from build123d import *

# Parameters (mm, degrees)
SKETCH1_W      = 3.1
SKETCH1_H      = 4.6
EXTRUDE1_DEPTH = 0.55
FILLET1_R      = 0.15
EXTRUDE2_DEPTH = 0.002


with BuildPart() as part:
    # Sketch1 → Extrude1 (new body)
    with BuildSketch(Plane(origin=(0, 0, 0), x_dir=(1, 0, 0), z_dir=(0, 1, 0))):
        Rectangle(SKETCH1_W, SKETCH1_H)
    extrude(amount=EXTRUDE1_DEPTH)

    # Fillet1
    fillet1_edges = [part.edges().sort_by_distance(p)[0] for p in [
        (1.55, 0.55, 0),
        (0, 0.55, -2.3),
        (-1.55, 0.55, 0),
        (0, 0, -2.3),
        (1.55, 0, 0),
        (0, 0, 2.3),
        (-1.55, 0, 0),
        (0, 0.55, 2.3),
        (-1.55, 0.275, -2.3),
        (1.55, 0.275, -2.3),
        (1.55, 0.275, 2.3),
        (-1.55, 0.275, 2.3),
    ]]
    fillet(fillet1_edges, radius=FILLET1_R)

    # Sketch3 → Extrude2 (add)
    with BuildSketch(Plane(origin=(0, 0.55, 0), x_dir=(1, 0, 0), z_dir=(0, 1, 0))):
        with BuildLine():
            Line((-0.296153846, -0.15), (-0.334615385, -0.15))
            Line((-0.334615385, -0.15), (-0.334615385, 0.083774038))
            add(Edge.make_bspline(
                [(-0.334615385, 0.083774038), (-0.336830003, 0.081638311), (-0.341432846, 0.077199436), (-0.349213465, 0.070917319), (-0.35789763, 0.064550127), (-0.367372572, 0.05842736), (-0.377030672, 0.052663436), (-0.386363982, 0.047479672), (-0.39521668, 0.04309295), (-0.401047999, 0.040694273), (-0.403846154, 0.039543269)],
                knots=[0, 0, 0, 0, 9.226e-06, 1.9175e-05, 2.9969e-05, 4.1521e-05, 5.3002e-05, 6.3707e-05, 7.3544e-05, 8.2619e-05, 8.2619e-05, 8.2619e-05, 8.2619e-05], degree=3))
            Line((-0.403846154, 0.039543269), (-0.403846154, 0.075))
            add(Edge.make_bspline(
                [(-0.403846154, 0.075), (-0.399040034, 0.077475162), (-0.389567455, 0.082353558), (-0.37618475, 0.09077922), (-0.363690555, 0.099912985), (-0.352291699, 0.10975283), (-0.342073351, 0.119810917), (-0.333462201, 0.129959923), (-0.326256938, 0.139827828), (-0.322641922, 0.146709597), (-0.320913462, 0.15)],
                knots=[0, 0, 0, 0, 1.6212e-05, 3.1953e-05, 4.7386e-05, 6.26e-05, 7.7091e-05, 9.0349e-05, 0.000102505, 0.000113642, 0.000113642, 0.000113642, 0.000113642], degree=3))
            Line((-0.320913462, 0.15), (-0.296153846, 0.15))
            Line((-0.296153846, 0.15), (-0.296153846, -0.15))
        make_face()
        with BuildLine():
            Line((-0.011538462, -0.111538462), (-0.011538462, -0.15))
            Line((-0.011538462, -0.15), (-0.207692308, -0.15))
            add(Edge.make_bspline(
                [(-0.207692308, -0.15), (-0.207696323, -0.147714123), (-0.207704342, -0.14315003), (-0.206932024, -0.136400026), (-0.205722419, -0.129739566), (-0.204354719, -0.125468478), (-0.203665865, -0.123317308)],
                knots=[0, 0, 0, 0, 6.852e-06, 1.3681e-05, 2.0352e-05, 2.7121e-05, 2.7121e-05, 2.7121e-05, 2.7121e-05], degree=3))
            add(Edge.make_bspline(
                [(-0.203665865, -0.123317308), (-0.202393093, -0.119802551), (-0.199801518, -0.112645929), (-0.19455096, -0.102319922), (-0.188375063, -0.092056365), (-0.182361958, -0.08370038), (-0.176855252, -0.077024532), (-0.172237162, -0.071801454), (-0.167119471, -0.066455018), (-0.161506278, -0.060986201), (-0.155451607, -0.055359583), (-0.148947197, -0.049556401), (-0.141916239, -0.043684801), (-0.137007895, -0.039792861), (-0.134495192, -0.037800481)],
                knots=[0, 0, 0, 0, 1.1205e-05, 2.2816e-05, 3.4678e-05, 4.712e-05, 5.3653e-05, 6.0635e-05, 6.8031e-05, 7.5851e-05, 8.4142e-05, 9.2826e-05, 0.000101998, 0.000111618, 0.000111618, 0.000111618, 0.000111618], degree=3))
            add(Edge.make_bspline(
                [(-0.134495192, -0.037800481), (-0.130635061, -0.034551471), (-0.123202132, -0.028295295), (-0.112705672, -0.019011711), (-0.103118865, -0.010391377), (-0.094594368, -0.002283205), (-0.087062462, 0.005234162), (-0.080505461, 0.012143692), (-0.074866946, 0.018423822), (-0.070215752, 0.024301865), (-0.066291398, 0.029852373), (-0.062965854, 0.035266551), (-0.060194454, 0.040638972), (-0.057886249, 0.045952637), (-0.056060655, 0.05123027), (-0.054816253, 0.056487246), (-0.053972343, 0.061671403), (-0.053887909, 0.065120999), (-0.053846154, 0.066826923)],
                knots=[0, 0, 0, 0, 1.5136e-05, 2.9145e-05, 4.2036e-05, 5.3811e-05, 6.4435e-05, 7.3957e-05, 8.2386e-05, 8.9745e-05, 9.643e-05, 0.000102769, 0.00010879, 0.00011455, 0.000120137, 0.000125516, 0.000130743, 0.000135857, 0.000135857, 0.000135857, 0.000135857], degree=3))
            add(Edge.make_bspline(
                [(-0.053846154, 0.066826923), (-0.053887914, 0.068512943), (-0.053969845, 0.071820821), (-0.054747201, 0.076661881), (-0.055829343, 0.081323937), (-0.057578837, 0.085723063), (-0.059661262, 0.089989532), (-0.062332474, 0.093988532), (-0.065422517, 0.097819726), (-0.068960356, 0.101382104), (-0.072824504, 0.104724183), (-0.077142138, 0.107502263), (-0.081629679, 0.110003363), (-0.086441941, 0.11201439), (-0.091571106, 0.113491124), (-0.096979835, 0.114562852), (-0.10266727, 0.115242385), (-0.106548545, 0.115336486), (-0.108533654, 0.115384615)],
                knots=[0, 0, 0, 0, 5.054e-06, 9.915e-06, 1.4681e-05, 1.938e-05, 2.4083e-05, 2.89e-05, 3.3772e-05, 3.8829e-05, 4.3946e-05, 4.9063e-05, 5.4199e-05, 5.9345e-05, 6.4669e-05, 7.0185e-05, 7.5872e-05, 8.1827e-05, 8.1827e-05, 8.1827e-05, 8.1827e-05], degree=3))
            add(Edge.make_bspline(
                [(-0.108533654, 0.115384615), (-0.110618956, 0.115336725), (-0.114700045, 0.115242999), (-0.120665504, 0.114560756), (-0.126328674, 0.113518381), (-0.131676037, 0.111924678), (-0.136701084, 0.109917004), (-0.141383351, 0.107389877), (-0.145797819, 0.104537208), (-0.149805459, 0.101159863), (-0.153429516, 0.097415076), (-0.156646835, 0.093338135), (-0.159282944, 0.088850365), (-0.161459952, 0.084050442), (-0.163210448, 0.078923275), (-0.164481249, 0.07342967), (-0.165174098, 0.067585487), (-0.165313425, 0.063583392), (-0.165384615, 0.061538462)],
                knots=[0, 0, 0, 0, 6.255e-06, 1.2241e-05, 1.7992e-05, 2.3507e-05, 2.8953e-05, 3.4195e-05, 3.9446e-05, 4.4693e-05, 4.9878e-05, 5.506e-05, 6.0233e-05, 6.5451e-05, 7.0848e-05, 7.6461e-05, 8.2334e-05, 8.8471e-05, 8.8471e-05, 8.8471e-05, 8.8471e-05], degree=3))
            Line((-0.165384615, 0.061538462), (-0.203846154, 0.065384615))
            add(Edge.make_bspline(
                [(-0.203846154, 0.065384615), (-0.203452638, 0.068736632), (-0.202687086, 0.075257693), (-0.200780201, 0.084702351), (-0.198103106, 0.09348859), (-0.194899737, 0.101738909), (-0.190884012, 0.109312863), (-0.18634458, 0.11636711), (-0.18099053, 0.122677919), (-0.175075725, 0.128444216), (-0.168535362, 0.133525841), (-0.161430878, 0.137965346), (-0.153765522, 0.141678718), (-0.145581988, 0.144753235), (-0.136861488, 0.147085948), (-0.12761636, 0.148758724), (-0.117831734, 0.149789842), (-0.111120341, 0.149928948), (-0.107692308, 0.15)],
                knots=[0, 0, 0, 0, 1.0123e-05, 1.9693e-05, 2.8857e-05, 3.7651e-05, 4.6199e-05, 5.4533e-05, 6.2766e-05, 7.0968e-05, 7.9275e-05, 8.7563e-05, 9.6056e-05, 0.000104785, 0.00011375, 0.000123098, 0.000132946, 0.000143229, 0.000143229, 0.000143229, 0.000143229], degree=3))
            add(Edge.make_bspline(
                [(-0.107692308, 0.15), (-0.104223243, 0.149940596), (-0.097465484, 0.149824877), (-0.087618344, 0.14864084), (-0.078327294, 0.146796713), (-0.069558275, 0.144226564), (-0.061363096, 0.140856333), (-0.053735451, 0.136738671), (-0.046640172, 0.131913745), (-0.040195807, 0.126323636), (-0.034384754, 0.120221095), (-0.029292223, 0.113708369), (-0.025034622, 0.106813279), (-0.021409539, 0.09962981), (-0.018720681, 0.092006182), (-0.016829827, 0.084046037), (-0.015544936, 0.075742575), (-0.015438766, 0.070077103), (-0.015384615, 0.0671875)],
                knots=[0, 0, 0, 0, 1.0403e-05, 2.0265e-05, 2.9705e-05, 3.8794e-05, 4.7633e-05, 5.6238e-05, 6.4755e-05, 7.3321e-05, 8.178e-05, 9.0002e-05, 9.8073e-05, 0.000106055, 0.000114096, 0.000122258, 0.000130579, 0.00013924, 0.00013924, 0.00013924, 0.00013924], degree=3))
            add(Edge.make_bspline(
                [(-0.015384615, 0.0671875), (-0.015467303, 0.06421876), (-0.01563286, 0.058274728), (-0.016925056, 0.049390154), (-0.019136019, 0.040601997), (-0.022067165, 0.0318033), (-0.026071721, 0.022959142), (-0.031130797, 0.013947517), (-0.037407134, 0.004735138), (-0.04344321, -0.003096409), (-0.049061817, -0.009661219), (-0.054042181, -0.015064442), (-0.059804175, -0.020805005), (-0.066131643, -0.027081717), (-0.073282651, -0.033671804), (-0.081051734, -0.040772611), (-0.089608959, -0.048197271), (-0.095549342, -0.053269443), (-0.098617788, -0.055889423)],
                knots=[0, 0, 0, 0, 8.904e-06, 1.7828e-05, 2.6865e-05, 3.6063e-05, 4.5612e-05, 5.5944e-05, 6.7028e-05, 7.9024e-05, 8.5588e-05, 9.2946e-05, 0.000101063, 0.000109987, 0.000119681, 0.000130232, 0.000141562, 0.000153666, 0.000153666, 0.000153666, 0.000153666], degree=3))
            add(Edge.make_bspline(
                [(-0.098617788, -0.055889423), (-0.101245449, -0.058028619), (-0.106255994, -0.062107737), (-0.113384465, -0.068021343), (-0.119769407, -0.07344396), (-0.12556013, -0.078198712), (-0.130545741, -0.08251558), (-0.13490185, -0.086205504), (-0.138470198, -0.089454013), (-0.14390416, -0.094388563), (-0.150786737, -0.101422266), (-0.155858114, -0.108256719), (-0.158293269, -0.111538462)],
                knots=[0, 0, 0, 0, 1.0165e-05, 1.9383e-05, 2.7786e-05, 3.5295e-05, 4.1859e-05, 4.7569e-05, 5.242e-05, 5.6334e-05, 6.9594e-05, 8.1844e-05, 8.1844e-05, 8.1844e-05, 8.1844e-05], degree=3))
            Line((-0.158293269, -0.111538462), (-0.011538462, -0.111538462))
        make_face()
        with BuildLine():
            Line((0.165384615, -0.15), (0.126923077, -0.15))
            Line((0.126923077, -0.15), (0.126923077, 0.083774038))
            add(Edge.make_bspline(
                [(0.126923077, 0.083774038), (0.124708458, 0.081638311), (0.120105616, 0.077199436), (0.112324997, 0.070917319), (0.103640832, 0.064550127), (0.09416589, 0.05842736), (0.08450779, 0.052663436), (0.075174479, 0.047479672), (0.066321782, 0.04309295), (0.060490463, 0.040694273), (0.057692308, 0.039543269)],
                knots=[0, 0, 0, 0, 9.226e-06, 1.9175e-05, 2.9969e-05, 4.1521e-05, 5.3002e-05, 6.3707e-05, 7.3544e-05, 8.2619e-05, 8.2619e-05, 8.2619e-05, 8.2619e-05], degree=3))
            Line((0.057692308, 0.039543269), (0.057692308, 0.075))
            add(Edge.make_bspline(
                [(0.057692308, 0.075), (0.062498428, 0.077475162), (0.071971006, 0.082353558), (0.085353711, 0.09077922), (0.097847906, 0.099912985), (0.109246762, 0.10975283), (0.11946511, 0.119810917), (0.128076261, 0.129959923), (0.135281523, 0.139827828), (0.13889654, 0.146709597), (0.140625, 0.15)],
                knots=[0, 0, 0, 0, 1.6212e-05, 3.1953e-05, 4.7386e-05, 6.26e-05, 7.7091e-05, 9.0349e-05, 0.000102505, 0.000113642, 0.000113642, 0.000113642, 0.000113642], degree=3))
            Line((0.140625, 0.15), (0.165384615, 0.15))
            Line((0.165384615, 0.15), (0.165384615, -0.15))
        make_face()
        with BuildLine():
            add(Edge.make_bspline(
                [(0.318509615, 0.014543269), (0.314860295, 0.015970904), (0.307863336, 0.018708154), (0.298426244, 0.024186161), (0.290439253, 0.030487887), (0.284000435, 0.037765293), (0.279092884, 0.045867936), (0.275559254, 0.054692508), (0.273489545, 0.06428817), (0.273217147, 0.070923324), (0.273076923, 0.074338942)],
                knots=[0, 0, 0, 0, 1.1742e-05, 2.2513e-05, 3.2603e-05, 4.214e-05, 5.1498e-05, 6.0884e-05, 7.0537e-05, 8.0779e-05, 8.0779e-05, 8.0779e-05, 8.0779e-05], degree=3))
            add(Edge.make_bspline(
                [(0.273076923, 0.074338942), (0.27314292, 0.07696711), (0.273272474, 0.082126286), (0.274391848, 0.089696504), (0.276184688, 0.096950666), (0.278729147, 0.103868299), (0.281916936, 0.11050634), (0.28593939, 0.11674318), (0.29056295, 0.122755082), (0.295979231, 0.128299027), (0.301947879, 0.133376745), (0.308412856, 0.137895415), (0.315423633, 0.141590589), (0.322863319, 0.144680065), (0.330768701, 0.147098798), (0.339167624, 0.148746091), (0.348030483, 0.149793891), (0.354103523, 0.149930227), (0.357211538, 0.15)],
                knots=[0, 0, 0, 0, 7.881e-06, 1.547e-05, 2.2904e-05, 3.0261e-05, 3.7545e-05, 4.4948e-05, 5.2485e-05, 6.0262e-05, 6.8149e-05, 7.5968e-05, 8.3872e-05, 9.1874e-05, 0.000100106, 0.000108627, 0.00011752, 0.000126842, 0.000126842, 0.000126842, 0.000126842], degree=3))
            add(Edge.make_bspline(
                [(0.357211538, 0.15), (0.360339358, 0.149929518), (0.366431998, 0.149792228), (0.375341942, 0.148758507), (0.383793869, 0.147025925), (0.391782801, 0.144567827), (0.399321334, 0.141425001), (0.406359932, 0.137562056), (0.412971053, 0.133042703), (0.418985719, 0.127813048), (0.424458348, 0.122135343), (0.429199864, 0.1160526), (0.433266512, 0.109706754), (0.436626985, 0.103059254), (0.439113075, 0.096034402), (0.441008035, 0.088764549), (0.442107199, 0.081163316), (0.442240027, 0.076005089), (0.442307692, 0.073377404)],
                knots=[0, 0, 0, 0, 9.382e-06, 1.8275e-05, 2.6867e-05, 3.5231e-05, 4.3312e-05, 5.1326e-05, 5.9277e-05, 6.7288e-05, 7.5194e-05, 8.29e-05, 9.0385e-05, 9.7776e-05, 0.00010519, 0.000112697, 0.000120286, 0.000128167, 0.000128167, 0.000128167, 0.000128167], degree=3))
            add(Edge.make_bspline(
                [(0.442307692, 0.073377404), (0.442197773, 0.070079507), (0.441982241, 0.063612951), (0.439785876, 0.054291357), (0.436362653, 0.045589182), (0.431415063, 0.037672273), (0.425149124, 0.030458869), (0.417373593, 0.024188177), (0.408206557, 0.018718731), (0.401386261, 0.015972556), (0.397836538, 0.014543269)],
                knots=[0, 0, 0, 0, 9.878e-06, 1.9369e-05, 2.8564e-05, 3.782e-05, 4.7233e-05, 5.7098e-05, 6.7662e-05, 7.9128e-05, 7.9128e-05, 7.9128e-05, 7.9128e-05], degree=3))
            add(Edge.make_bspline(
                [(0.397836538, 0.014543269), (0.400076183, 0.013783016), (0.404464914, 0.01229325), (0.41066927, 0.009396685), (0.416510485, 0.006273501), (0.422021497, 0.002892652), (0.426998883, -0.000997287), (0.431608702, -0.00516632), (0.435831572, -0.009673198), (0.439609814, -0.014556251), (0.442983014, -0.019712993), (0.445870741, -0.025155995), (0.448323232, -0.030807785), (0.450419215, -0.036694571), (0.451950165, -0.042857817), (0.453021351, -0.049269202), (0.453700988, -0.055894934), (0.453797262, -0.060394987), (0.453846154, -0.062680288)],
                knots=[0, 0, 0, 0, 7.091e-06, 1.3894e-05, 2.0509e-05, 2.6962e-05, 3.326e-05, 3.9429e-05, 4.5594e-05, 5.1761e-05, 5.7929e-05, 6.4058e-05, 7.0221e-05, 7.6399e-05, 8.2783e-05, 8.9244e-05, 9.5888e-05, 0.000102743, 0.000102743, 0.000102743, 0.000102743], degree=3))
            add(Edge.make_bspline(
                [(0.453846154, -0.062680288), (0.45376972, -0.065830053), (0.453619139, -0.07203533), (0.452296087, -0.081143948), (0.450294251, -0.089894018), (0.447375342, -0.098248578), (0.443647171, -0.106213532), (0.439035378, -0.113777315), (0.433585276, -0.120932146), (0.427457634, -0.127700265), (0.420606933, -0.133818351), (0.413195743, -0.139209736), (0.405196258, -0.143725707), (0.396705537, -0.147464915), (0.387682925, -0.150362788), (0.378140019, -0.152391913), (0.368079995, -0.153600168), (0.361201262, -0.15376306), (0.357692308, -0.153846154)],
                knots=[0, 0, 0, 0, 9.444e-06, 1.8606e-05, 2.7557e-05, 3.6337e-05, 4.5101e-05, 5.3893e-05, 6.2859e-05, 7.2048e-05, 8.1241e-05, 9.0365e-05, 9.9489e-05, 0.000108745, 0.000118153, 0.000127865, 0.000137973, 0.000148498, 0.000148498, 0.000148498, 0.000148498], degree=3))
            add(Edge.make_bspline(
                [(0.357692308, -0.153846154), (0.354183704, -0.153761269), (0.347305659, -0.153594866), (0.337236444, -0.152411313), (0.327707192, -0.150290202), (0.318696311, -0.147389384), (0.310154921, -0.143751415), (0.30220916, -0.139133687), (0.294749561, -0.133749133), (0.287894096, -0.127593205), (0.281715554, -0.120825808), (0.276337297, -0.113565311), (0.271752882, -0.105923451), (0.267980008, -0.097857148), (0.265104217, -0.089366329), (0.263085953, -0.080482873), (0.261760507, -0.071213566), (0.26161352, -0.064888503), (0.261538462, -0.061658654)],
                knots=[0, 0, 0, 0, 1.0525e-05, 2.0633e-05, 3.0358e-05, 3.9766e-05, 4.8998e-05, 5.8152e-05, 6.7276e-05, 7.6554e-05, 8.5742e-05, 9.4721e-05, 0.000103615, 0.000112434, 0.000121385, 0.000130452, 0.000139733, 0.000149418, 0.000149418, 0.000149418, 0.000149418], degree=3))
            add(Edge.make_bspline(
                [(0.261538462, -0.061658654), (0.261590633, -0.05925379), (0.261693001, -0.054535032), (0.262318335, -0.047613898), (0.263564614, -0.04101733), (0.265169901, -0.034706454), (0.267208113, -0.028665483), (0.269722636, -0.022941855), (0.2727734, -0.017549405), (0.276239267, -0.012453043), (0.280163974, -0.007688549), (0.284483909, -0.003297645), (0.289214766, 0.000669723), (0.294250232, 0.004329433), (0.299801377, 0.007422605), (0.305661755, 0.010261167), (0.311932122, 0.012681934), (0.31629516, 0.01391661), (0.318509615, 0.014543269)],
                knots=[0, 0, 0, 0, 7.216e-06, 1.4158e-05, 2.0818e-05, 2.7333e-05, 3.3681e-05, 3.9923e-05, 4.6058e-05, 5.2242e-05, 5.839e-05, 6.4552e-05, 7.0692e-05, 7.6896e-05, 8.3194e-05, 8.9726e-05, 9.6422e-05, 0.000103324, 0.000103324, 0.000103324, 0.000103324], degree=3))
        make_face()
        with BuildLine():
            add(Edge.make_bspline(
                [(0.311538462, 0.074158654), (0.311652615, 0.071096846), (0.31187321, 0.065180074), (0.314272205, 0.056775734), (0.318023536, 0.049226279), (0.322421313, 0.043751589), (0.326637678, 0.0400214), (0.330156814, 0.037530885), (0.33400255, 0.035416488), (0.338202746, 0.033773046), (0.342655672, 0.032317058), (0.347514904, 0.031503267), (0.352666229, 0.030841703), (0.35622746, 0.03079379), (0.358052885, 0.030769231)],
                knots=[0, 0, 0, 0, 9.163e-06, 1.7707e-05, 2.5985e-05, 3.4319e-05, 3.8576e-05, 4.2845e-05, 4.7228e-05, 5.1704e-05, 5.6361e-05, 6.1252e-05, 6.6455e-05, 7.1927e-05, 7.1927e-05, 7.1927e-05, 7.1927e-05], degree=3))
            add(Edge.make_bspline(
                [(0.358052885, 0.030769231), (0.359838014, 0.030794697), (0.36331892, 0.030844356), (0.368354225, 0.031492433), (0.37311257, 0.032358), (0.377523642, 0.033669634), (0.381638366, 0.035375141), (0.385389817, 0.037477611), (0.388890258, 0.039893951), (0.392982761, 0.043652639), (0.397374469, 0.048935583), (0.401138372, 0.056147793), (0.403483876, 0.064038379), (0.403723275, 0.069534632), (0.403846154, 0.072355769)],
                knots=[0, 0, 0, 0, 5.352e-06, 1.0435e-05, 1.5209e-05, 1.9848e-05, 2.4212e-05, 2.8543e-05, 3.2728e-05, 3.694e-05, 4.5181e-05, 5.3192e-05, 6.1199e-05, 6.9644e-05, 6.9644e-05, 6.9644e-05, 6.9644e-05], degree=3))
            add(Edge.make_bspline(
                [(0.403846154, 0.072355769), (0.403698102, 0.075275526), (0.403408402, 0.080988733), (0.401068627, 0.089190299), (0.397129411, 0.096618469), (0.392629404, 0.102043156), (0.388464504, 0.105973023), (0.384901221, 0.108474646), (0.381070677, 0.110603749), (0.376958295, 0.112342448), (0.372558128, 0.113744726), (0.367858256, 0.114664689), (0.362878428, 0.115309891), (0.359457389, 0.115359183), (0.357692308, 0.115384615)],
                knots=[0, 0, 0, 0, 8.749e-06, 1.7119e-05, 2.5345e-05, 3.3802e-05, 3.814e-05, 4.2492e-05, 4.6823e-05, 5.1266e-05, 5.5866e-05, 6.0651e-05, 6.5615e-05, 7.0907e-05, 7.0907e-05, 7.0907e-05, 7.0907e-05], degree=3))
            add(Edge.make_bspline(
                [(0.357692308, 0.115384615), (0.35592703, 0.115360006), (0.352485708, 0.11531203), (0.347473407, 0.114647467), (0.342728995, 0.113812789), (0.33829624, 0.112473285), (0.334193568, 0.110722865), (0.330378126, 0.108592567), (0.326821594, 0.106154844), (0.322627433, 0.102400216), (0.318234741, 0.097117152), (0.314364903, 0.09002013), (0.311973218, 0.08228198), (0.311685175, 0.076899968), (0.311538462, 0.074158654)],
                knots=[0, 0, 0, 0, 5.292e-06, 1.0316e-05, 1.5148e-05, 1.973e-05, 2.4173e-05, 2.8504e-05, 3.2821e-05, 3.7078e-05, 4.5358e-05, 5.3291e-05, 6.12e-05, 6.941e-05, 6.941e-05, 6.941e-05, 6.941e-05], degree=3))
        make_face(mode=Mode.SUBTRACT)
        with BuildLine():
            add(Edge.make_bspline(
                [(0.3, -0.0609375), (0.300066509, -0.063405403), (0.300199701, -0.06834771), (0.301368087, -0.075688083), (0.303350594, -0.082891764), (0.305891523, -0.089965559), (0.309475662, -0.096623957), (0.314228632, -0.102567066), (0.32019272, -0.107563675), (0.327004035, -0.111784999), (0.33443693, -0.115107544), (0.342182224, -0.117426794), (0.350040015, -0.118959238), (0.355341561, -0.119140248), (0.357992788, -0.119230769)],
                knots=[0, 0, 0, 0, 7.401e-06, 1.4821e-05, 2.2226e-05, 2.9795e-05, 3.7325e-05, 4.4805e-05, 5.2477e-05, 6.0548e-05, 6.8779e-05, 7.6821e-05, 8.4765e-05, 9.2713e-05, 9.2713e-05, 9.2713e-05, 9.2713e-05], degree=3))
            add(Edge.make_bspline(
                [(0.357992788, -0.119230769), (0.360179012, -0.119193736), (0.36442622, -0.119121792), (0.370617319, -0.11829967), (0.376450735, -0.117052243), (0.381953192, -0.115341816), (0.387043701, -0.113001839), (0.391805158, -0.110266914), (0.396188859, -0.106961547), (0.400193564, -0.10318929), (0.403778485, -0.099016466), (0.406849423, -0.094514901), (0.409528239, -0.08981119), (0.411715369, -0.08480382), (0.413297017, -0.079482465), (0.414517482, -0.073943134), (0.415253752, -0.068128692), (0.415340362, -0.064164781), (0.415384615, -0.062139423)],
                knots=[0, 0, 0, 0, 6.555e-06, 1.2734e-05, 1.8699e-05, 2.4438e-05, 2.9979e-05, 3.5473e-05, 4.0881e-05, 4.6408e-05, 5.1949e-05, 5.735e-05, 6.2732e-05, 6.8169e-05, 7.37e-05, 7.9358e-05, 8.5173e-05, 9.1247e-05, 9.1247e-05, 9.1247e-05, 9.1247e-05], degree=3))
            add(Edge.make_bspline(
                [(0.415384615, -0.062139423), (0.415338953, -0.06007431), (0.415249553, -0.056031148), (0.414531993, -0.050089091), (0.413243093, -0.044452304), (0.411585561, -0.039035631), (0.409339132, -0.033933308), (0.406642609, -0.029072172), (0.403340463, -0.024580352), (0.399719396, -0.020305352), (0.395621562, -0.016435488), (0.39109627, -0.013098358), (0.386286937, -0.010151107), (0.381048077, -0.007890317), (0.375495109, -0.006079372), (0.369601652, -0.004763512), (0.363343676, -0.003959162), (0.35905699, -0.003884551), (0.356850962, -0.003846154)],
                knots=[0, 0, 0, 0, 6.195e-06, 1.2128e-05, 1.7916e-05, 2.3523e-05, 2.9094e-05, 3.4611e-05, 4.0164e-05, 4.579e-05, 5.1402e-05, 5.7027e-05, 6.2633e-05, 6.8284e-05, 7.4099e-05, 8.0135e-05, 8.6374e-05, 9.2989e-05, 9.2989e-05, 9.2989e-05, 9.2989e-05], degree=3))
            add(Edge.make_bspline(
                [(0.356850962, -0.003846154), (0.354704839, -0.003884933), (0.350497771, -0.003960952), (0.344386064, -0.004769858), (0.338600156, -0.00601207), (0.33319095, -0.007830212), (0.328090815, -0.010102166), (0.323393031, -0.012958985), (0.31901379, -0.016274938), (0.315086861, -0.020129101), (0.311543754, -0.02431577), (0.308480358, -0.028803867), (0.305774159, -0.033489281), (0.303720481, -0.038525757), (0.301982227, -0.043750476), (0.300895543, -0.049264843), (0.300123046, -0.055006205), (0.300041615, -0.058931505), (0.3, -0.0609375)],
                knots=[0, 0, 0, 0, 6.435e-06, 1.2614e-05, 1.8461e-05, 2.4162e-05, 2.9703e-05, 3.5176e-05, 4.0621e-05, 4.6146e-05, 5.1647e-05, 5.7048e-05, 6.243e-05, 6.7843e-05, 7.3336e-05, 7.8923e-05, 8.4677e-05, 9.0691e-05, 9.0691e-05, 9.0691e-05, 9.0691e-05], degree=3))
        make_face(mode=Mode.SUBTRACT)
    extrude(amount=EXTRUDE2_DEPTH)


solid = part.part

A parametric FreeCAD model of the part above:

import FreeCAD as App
import Part
import Sketcher


def add_polygon(sketch, points):
    """Adds a closed chain of lines whose ends are joined by coincident constraints."""
    first, n = sketch.GeometryCount, len(points)
    for a, b in zip(points, points[1:] + points[:1]):
        sketch.addGeometry(Part.LineSegment(App.Vector(*a, 0), App.Vector(*b, 0)), False)
    for i in range(n):
        sketch.addConstraint(Sketcher.Constraint("Coincident", first + i, 2, first + (i + 1) % n, 1))

doc = App.newDocument("Part")
params = doc.addObject("Spreadsheet::Sheet", "Params")
for row, (alias, value) in enumerate([
    ("sketch1_width", "3.1 mm"),
    ("sketch1_height", "4.6 mm"),
    ("pad1_length", "0.55 mm"),
    ("fillet_radius", "0.15 mm"),
    ("sketch2_height", "0.3 mm"),
    ("sketch2_height2", "0.3 mm"),
    ("pad2_length", "0.002 mm"),
], start=1):
    params.set(f"A{row}", alias)
    params.set(f"B{row}", "=" + value)
    params.setAlias(f"B{row}", alias)

body = doc.addObject("PartDesign::Body", "Body")

sketch1 = doc.addObject("Sketcher::SketchObject", "Sketch")
body.addObject(sketch1)
sketch1.AttachmentSupport = (doc.XZ_Plane, [""])
sketch1.MapMode = "FlatFace"
add_polygon(sketch1, [(-1.55, -2.3), (-1.55, 2.3), (1.55, 2.3), (1.55, -2.3)])
sketch1.addConstraint([
    Sketcher.Constraint("Vertical", 0),
    Sketcher.Constraint("Horizontal", 1),
    Sketcher.Constraint("Vertical", 2),
    Sketcher.Constraint("Horizontal", 3),
    Sketcher.Constraint("Symmetric", 0, 2, 2, 2, -1, 1),
    Sketcher.Constraint("DistanceX", 1, 1, 1, 2, 3.1),
    Sketcher.Constraint("DistanceY", 0, 1, 0, 2, 4.6),
])
sketch1.setExpression("Constraints[9]", "Params.sketch1_width")
sketch1.setExpression("Constraints[10]", "Params.sketch1_height")
pad1 = doc.addObject("PartDesign::Pad", "Pad")
body.addObject(pad1)
pad1.Profile = sketch1
pad1.setExpression("Length", "Params.pad1_length")
pad1.Reversed = True
doc.recompute()

fillet = doc.addObject("PartDesign::Fillet", "Fillet")
body.addObject(fillet)
fillet.Base = (pad1, ["Edge1"])
fillet.UseAllEdges = True
fillet.setExpression("Radius", "Params.fillet_radius")

sketch2 = doc.addObject("Sketcher::SketchObject", "Sketch001")
body.addObject(sketch2)
sketch2.AttachmentSupport = (doc.XZ_Plane, [""])
sketch2.MapMode = "FlatFace"
sketch2.AttachmentOffset = App.Placement(App.Vector(0, 0, -0.55), App.Rotation())
sketch2.addGeometry([
    Part.LineSegment(App.Vector(-0.334615, 0.15, 0), App.Vector(-0.296154, 0.15, 0)),
    Part.LineSegment(App.Vector(-0.296154, 0.15, 0), App.Vector(-0.296154, -0.15, 0)),
    Part.LineSegment(App.Vector(-0.296154, -0.15, 0), App.Vector(-0.320913, -0.15, 0)),
    Part.BSplineCurve([App.Vector(-0.403846, -0.075, 0), App.Vector(-0.39904, -0.077475, 0), App.Vector(-0.389567, -0.082354, 0), App.Vector(-0.376185, -0.090779, 0), App.Vector(-0.363691, -0.099913, 0), App.Vector(-0.352292, -0.109753, 0), App.Vector(-0.342073, -0.119811, 0), App.Vector(-0.333462, -0.12996, 0), App.Vector(-0.326257, -0.139828, 0), App.Vector(-0.322642, -0.14671, 0), App.Vector(-0.320913, -0.15, 0)], [4, 1, 1, 1, 1, 1, 1, 1, 4], [0, 0.000016212, 0.000031953, 0.000047386, 0.0000626, 0.000077091, 0.000090349, 0.000102505, 0.000113642], False, 3, [1, 1, 1, 1, 1, 1, 1, 1, 1, 1, 1], False),
    Part.LineSegment(App.Vector(-0.403846, -0.075, 0), App.Vector(-0.403846, -0.039543, 0)),
    Part.BSplineCurve([App.Vector(-0.334615, -0.083774, 0), App.Vector(-0.33683, -0.081638, 0), App.Vector(-0.341433, -0.077199, 0), App.Vector(-0.349213, -0.070917, 0), App.Vector(-0.357898, -0.06455, 0), App.Vector(-0.367373, -0.058427, 0), App.Vector(-0.377031, -0.052663, 0), App.Vector(-0.386364, -0.04748, 0), App.Vector(-0.395217, -0.043093, 0), App.Vector(-0.401048, -0.040694, 0), App.Vector(-0.403846, -0.039543, 0)], [4, 1, 1, 1, 1, 1, 1, 1, 4], [0, 0.000009226, 0.000019175, 0.000029969, 0.000041521, 0.000053002, 0.000063707, 0.000073544, 0.000082619], False, 3, [1, 1, 1, 1, 1, 1, 1, 1, 1, 1, 1], False),
    Part.LineSegment(App.Vector(-0.334615, -0.083774, 0), App.Vector(-0.334615, 0.15, 0)),
    Part.LineSegment(App.Vector(-0.011538, 0.15, 0), App.Vector(-0.011538, 0.111538, 0)),
    Part.LineSegment(App.Vector(-0.011538, 0.111538, 0), App.Vector(-0.158293, 0.111538, 0)),
    Part.BSplineCurve([App.Vector(-0.098618, 0.055889, 0), App.Vector(-0.101245, 0.058029, 0), App.Vector(-0.106256, 0.062108, 0), App.Vector(-0.113384, 0.068021, 0), App.Vector(-0.119769, 0.073444, 0), App.Vector(-0.12556, 0.078199, 0), App.Vector(-0.130546, 0.082516, 0), App.Vector(-0.134902, 0.086206, 0), App.Vector(-0.13847, 0.089454, 0), App.Vector(-0.143904, 0.094389, 0), App.Vector(-0.150787, 0.101422, 0), App.Vector(-0.155858, 0.108257, 0), App.Vector(-0.158293, 0.111538, 0)], [4, 1, 1, 1, 1, 1, 1, 1, 1, 1, 4], [0, 0.000010165, 0.000019383, 0.000027786, 0.000035295, 0.000041859, 0.000047569, 0.00005242, 0.000056334, 0.000069594, 0.000081844], False, 3, [1, 1, 1, 1, 1, 1, 1, 1, 1, 1, 1, 1, 1], False),
    Part.BSplineCurve([App.Vector(-0.015385, -0.067187, 0), App.Vector(-0.015467, -0.064219, 0), App.Vector(-0.015633, -0.058275, 0), App.Vector(-0.016925, -0.04939, 0), App.Vector(-0.019136, -0.040602, 0), App.Vector(-0.022067, -0.031803, 0), App.Vector(-0.026072, -0.022959, 0), App.Vector(-0.031131, -0.013948, 0), App.Vector(-0.037407, -0.004735, 0), App.Vector(-0.043443, 0.003096, 0), App.Vector(-0.049062, 0.009661, 0), App.Vector(-0.054042, 0.015064, 0), App.Vector(-0.059804, 0.020805, 0), App.Vector(-0.066132, 0.027082, 0), App.Vector(-0.073283, 0.033672, 0), App.Vector(-0.081052, 0.040773, 0), App.Vector(-0.089609, 0.048197, 0), App.Vector(-0.095549, 0.053269, 0), App.Vector(-0.098618, 0.055889, 0)], [4, 1, 1, 1, 1, 1, 1, 1, 1, 1, 1, 1, 1, 1, 1, 1, 4], [0, 0.000008904, 0.000017828, 0.000026865, 0.000036063, 0.000045612, 0.000055944, 0.000067028, 0.000079024, 0.000085588, 0.000092946, 0.000101063, 0.000109987, 0.000119681, 0.000130232, 0.000141562, 0.000153666], False, 3, [1, 1, 1, 1, 1, 1, 1, 1, 1, 1, 1, 1, 1, 1, 1, 1, 1, 1, 1], False),
    Part.BSplineCurve([App.Vector(-0.107692, -0.15, 0), App.Vector(-0.104223, -0.149941, 0), App.Vector(-0.097465, -0.149825, 0), App.Vector(-0.087618, -0.148641, 0), App.Vector(-0.078327, -0.146797, 0), App.Vector(-0.069558, -0.144227, 0), App.Vector(-0.061363, -0.140856, 0), App.Vector(-0.053735, -0.136739, 0), App.Vector(-0.04664, -0.131914, 0), App.Vector(-0.040196, -0.126324, 0), App.Vector(-0.034385, -0.120221, 0), App.Vector(-0.029292, -0.113708, 0), App.Vector(-0.025035, -0.106813, 0), App.Vector(-0.02141, -0.09963, 0), App.Vector(-0.018721, -0.092006, 0), App.Vector(-0.01683, -0.084046, 0), App.Vector(-0.015545, -0.075743, 0), App.Vector(-0.015439, -0.070077, 0), App.Vector(-0.015385, -0.067187, 0)], [4, 1, 1, 1, 1, 1, 1, 1, 1, 1, 1, 1, 1, 1, 1, 1, 4], [0, 0.000010403, 0.000020265, 0.000029705, 0.000038794, 0.000047633, 0.000056238, 0.000064755, 0.000073321, 0.00008178, 0.000090002, 0.000098073, 0.000106055, 0.000114096, 0.000122258, 0.000130579, 0.00013924], False, 3, [1, 1, 1, 1, 1, 1, 1, 1, 1, 1, 1, 1, 1, 1, 1, 1, 1, 1, 1], False),
    Part.BSplineCurve([App.Vector(-0.203846, -0.065385, 0), App.Vector(-0.203453, -0.068737, 0), App.Vector(-0.202687, -0.075258, 0), App.Vector(-0.20078, -0.084702, 0), App.Vector(-0.198103, -0.093489, 0), App.Vector(-0.1949, -0.101739, 0), App.Vector(-0.190884, -0.109313, 0), App.Vector(-0.186345, -0.116367, 0), App.Vector(-0.180991, -0.122678, 0), App.Vector(-0.175076, -0.128444, 0), App.Vector(-0.168535, -0.133526, 0), App.Vector(-0.161431, -0.137965, 0), App.Vector(-0.153766, -0.141679, 0), App.Vector(-0.145582, -0.144753, 0), App.Vector(-0.136861, -0.147086, 0), App.Vector(-0.127616, -0.148759, 0), App.Vector(-0.117832, -0.14979, 0), App.Vector(-0.11112, -0.149929, 0), App.Vector(-0.107692, -0.15, 0)], [4, 1, 1, 1, 1, 1, 1, 1, 1, 1, 1, 1, 1, 1, 1, 1, 4], [0, 0.000010123, 0.000019693, 0.000028857, 0.000037651, 0.000046199, 0.000054533, 0.000062766, 0.000070968, 0.000079275, 0.000087563, 0.000096056, 0.000104785, 0.00011375, 0.000123098, 0.000132946, 0.000143229], False, 3, [1, 1, 1, 1, 1, 1, 1, 1, 1, 1, 1, 1, 1, 1, 1, 1, 1, 1, 1], False),
    Part.LineSegment(App.Vector(-0.203846, -0.065385, 0), App.Vector(-0.165385, -0.061538, 0)),
    Part.BSplineCurve([App.Vector(-0.108534, -0.115385, 0), App.Vector(-0.110619, -0.115337, 0), App.Vector(-0.1147, -0.115243, 0), App.Vector(-0.120666, -0.114561, 0), App.Vector(-0.126329, -0.113518, 0), App.Vector(-0.131676, -0.111925, 0), App.Vector(-0.136701, -0.109917, 0), App.Vector(-0.141383, -0.10739, 0), App.Vector(-0.145798, -0.104537, 0), App.Vector(-0.149805, -0.10116, 0), App.Vector(-0.15343, -0.097415, 0), App.Vector(-0.156647, -0.093338, 0), App.Vector(-0.159283, -0.08885, 0), App.Vector(-0.16146, -0.08405, 0), App.Vector(-0.16321, -0.078923, 0), App.Vector(-0.164481, -0.07343, 0), App.Vector(-0.165174, -0.067585, 0), App.Vector(-0.165313, -0.063583, 0), App.Vector(-0.165385, -0.061538, 0)], [4, 1, 1, 1, 1, 1, 1, 1, 1, 1, 1, 1, 1, 1, 1, 1, 4], [0, 0.000006255, 0.000012241, 0.000017992, 0.000023507, 0.000028953, 0.000034195, 0.000039446, 0.000044693, 0.000049878, 0.00005506, 0.000060233, 0.000065451, 0.000070848, 0.000076461, 0.000082334, 0.000088471], False, 3, [1, 1, 1, 1, 1, 1, 1, 1, 1, 1, 1, 1, 1, 1, 1, 1, 1, 1, 1], False),
    Part.BSplineCurve([App.Vector(-0.053846, -0.066827, 0), App.Vector(-0.053888, -0.068513, 0), App.Vector(-0.05397, -0.071821, 0), App.Vector(-0.054747, -0.076662, 0), App.Vector(-0.055829, -0.081324, 0), App.Vector(-0.057579, -0.085723, 0), App.Vector(-0.059661, -0.08999, 0), App.Vector(-0.062332, -0.093989, 0), App.Vector(-0.065423, -0.09782, 0), App.Vector(-0.06896, -0.101382, 0), App.Vector(-0.072825, -0.104724, 0), App.Vector(-0.077142, -0.107502, 0), App.Vector(-0.08163, -0.110003, 0), App.Vector(-0.086442, -0.112014, 0), App.Vector(-0.091571, -0.113491, 0), App.Vector(-0.09698, -0.114563, 0), App.Vector(-0.102667, -0.115242, 0), App.Vector(-0.106549, -0.115336, 0), App.Vector(-0.108534, -0.115385, 0)], [4, 1, 1, 1, 1, 1, 1, 1, 1, 1, 1, 1, 1, 1, 1, 1, 4], [0, 0.000005054, 0.000009915, 0.000014681, 0.00001938, 0.000024083, 0.0000289, 0.000033772, 0.000038829, 0.000043946, 0.000049063, 0.000054199, 0.000059345, 0.000064669, 0.000070185, 0.000075872, 0.000081827], False, 3, [1, 1, 1, 1, 1, 1, 1, 1, 1, 1, 1, 1, 1, 1, 1, 1, 1, 1, 1], False),
    Part.BSplineCurve([App.Vector(-0.134495, 0.0378, 0), App.Vector(-0.130635, 0.034551, 0), App.Vector(-0.123202, 0.028295, 0), App.Vector(-0.112706, 0.019012, 0), App.Vector(-0.103119, 0.010391, 0), App.Vector(-0.094594, 0.002283, 0), App.Vector(-0.087062, -0.005234, 0), App.Vector(-0.080505, -0.012144, 0), App.Vector(-0.074867, -0.018424, 0), App.Vector(-0.070216, -0.024302, 0), App.Vector(-0.066291, -0.029852, 0), App.Vector(-0.062966, -0.035267, 0), App.Vector(-0.060194, -0.040639, 0), App.Vector(-0.057886, -0.045953, 0), App.Vector(-0.056061, -0.05123, 0), App.Vector(-0.054816, -0.056487, 0), App.Vector(-0.053972, -0.061671, 0), App.Vector(-0.053888, -0.065121, 0), App.Vector(-0.053846, -0.066827, 0)], [4, 1, 1, 1, 1, 1, 1, 1, 1, 1, 1, 1, 1, 1, 1, 1, 4], [0, 0.000015136, 0.000029145, 0.000042036, 0.000053811, 0.000064435, 0.000073957, 0.000082386, 0.000089745, 0.00009643, 0.000102769, 0.00010879, 0.00011455, 0.000120137, 0.000125516, 0.000130743, 0.000135857], False, 3, [1, 1, 1, 1, 1, 1, 1, 1, 1, 1, 1, 1, 1, 1, 1, 1, 1, 1, 1], False),
    Part.BSplineCurve([App.Vector(-0.203666, 0.123317, 0), App.Vector(-0.202393, 0.119803, 0), App.Vector(-0.199802, 0.112646, 0), App.Vector(-0.194551, 0.10232, 0), App.Vector(-0.188375, 0.092056, 0), App.Vector(-0.182362, 0.0837, 0), App.Vector(-0.176855, 0.077025, 0), App.Vector(-0.172237, 0.071801, 0), App.Vector(-0.167119, 0.066455, 0), App.Vector(-0.161506, 0.060986, 0), App.Vector(-0.155452, 0.05536, 0), App.Vector(-0.148947, 0.049556, 0), App.Vector(-0.141916, 0.043685, 0), App.Vector(-0.137008, 0.039793, 0), App.Vector(-0.134495, 0.0378, 0)], [4, 1, 1, 1, 1, 1, 1, 1, 1, 1, 1, 1, 4], [0, 0.000011205, 0.000022816, 0.000034678, 0.00004712, 0.000053653, 0.000060635, 0.000068031, 0.000075851, 0.000084142, 0.000092826, 0.000101998, 0.000111618], False, 3, [1, 1, 1, 1, 1, 1, 1, 1, 1, 1, 1, 1, 1, 1, 1], False),
    Part.BSplineCurve([App.Vector(-0.207692, 0.15, 0), App.Vector(-0.207696, 0.147714, 0), App.Vector(-0.207704, 0.14315, 0), App.Vector(-0.206932, 0.1364, 0), App.Vector(-0.205722, 0.12974, 0), App.Vector(-0.204355, 0.125468, 0), App.Vector(-0.203666, 0.123317, 0)], [4, 1, 1, 1, 4], [0, 0.000006852, 0.000013681, 0.000020352, 0.000027121], False, 3, [1, 1, 1, 1, 1, 1, 1], False),
    Part.LineSegment(App.Vector(-0.207692, 0.15, 0), App.Vector(-0.011538, 0.15, 0)),
    Part.LineSegment(App.Vector(0.126923, 0.15, 0), App.Vector(0.165385, 0.15, 0)),
    Part.LineSegment(App.Vector(0.165385, 0.15, 0), App.Vector(0.165385, -0.15, 0)),
    Part.LineSegment(App.Vector(0.165385, -0.15, 0), App.Vector(0.140625, -0.15, 0)),
    Part.BSplineCurve([App.Vector(0.057692, -0.075, 0), App.Vector(0.062498, -0.077475, 0), App.Vector(0.071971, -0.082354, 0), App.Vector(0.085354, -0.090779, 0), App.Vector(0.097848, -0.099913, 0), App.Vector(0.109247, -0.109753, 0), App.Vector(0.119465, -0.119811, 0), App.Vector(0.128076, -0.12996, 0), App.Vector(0.135282, -0.139828, 0), App.Vector(0.138897, -0.14671, 0), App.Vector(0.140625, -0.15, 0)], [4, 1, 1, 1, 1, 1, 1, 1, 4], [0, 0.000016212, 0.000031953, 0.000047386, 0.0000626, 0.000077091, 0.000090349, 0.000102505, 0.000113642], False, 3, [1, 1, 1, 1, 1, 1, 1, 1, 1, 1, 1], False),
    Part.LineSegment(App.Vector(0.057692, -0.075, 0), App.Vector(0.057692, -0.039543, 0)),
    Part.BSplineCurve([App.Vector(0.126923, -0.083774, 0), App.Vector(0.124708, -0.081638, 0), App.Vector(0.120106, -0.077199, 0), App.Vector(0.112325, -0.070917, 0), App.Vector(0.103641, -0.06455, 0), App.Vector(0.094166, -0.058427, 0), App.Vector(0.084508, -0.052663, 0), App.Vector(0.075174, -0.04748, 0), App.Vector(0.066322, -0.043093, 0), App.Vector(0.06049, -0.040694, 0), App.Vector(0.057692, -0.039543, 0)], [4, 1, 1, 1, 1, 1, 1, 1, 4], [0, 0.000009226, 0.000019175, 0.000029969, 0.000041521, 0.000053002, 0.000063707, 0.000073544, 0.000082619], False, 3, [1, 1, 1, 1, 1, 1, 1, 1, 1, 1, 1], False),
    Part.LineSegment(App.Vector(0.126923, -0.083774, 0), App.Vector(0.126923, 0.15, 0)),
    Part.BSplineCurve([App.Vector(0.31851, -0.014543, 0), App.Vector(0.31486, -0.015971, 0), App.Vector(0.307863, -0.018708, 0), App.Vector(0.298426, -0.024186, 0), App.Vector(0.290439, -0.030488, 0), App.Vector(0.284, -0.037765, 0), App.Vector(0.279093, -0.045868, 0), App.Vector(0.275559, -0.054693, 0), App.Vector(0.27349, -0.064288, 0), App.Vector(0.273217, -0.070923, 0), App.Vector(0.273077, -0.074339, 0)], [4, 1, 1, 1, 1, 1, 1, 1, 4], [0, 0.000011742, 0.000022513, 0.000032603, 0.00004214, 0.000051498, 0.000060884, 0.000070537, 0.000080779], False, 3, [1, 1, 1, 1, 1, 1, 1, 1, 1, 1, 1], False),
    Part.BSplineCurve([App.Vector(0.261538, 0.061659, 0), App.Vector(0.261591, 0.059254, 0), App.Vector(0.261693, 0.054535, 0), App.Vector(0.262318, 0.047614, 0), App.Vector(0.263565, 0.041017, 0), App.Vector(0.26517, 0.034706, 0), App.Vector(0.267208, 0.028665, 0), App.Vector(0.269723, 0.022942, 0), App.Vector(0.272773, 0.017549, 0), App.Vector(0.276239, 0.012453, 0), App.Vector(0.280164, 0.007689, 0), App.Vector(0.284484, 0.003298, 0), App.Vector(0.289215, -0.00067, 0), App.Vector(0.29425, -0.004329, 0), App.Vector(0.299801, -0.007423, 0), App.Vector(0.305662, -0.010261, 0), App.Vector(0.311932, -0.012682, 0), App.Vector(0.316295, -0.013917, 0), App.Vector(0.31851, -0.014543, 0)], [4, 1, 1, 1, 1, 1, 1, 1, 1, 1, 1, 1, 1, 1, 1, 1, 4], [0, 0.000007216, 0.000014158, 0.000020818, 0.000027333, 0.000033681, 0.000039923, 0.000046058, 0.000052242, 0.00005839, 0.000064552, 0.000070692, 0.000076896, 0.000083194, 0.000089726, 0.000096422, 0.000103324], False, 3, [1, 1, 1, 1, 1, 1, 1, 1, 1, 1, 1, 1, 1, 1, 1, 1, 1, 1, 1], False),
    Part.BSplineCurve([App.Vector(0.357692, 0.153846, 0), App.Vector(0.354184, 0.153761, 0), App.Vector(0.347306, 0.153595, 0), App.Vector(0.337236, 0.152411, 0), App.Vector(0.327707, 0.15029, 0), App.Vector(0.318696, 0.147389, 0), App.Vector(0.310155, 0.143751, 0), App.Vector(0.302209, 0.139134, 0), App.Vector(0.29475, 0.133749, 0), App.Vector(0.287894, 0.127593, 0), App.Vector(0.281716, 0.120826, 0), App.Vector(0.276337, 0.113565, 0), App.Vector(0.271753, 0.105923, 0), App.Vector(0.26798, 0.097857, 0), App.Vector(0.265104, 0.089366, 0), App.Vector(0.263086, 0.080483, 0), App.Vector(0.261761, 0.071214, 0), App.Vector(0.261614, 0.064889, 0), App.Vector(0.261538, 0.061659, 0)], [4, 1, 1, 1, 1, 1, 1, 1, 1, 1, 1, 1, 1, 1, 1, 1, 4], [0, 0.000010525, 0.000020633, 0.000030358, 0.000039766, 0.000048998, 0.000058152, 0.000067276, 0.000076554, 0.000085742, 0.000094721, 0.000103615, 0.000112434, 0.000121385, 0.000130452, 0.000139733, 0.000149418], False, 3, [1, 1, 1, 1, 1, 1, 1, 1, 1, 1, 1, 1, 1, 1, 1, 1, 1, 1, 1], False),
    Part.BSplineCurve([App.Vector(0.453846, 0.06268, 0), App.Vector(0.45377, 0.06583, 0), App.Vector(0.453619, 0.072035, 0), App.Vector(0.452296, 0.081144, 0), App.Vector(0.450294, 0.089894, 0), App.Vector(0.447375, 0.098249, 0), App.Vector(0.443647, 0.106214, 0), App.Vector(0.439035, 0.113777, 0), App.Vector(0.433585, 0.120932, 0), App.Vector(0.427458, 0.1277, 0), App.Vector(0.420607, 0.133818, 0), App.Vector(0.413196, 0.13921, 0), App.Vector(0.405196, 0.143726, 0), App.Vector(0.396706, 0.147465, 0), App.Vector(0.387683, 0.150363, 0), App.Vector(0.37814, 0.152392, 0), App.Vector(0.36808, 0.1536, 0), App.Vector(0.361201, 0.153763, 0), App.Vector(0.357692, 0.153846, 0)], [4, 1, 1, 1, 1, 1, 1, 1, 1, 1, 1, 1, 1, 1, 1, 1, 4], [0, 0.000009444, 0.000018606, 0.000027557, 0.000036337, 0.000045101, 0.000053893, 0.000062859, 0.000072048, 0.000081241, 0.000090365, 0.000099489, 0.000108745, 0.000118153, 0.000127865, 0.000137973, 0.000148498], False, 3, [1, 1, 1, 1, 1, 1, 1, 1, 1, 1, 1, 1, 1, 1, 1, 1, 1, 1, 1], False),
    Part.BSplineCurve([App.Vector(0.397837, -0.014543, 0), App.Vector(0.400076, -0.013783, 0), App.Vector(0.404465, -0.012293, 0), App.Vector(0.410669, -0.009397, 0), App.Vector(0.41651, -0.006274, 0), App.Vector(0.422021, -0.002893, 0), App.Vector(0.426999, 0.000997, 0), App.Vector(0.431609, 0.005166, 0), App.Vector(0.435832, 0.009673, 0), App.Vector(0.43961, 0.014556, 0), App.Vector(0.442983, 0.019713, 0), App.Vector(0.445871, 0.025156, 0), App.Vector(0.448323, 0.030808, 0), App.Vector(0.450419, 0.036695, 0), App.Vector(0.45195, 0.042858, 0), App.Vector(0.453021, 0.049269, 0), App.Vector(0.453701, 0.055895, 0), App.Vector(0.453797, 0.060395, 0), App.Vector(0.453846, 0.06268, 0)], [4, 1, 1, 1, 1, 1, 1, 1, 1, 1, 1, 1, 1, 1, 1, 1, 4], [0, 0.000007091, 0.000013894, 0.000020509, 0.000026962, 0.00003326, 0.000039429, 0.000045594, 0.000051761, 0.000057929, 0.000064058, 0.000070221, 0.000076399, 0.000082783, 0.000089244, 0.000095888, 0.000102743], False, 3, [1, 1, 1, 1, 1, 1, 1, 1, 1, 1, 1, 1, 1, 1, 1, 1, 1, 1, 1], False),
    Part.BSplineCurve([App.Vector(0.442308, -0.073377, 0), App.Vector(0.442198, -0.07008, 0), App.Vector(0.441982, -0.063613, 0), App.Vector(0.439786, -0.054291, 0), App.Vector(0.436363, -0.045589, 0), App.Vector(0.431415, -0.037672, 0), App.Vector(0.425149, -0.030459, 0), App.Vector(0.417374, -0.024188, 0), App.Vector(0.408207, -0.018719, 0), App.Vector(0.401386, -0.015973, 0), App.Vector(0.397837, -0.014543, 0)], [4, 1, 1, 1, 1, 1, 1, 1, 4], [0, 0.000009878, 0.000019369, 0.000028564, 0.00003782, 0.000047233, 0.000057098, 0.000067662, 0.000079128], False, 3, [1, 1, 1, 1, 1, 1, 1, 1, 1, 1, 1], False),
    Part.BSplineCurve([App.Vector(0.357212, -0.15, 0), App.Vector(0.360339, -0.14993, 0), App.Vector(0.366432, -0.149792, 0), App.Vector(0.375342, -0.148759, 0), App.Vector(0.383794, -0.147026, 0), App.Vector(0.391783, -0.144568, 0), App.Vector(0.399321, -0.141425, 0), App.Vector(0.40636, -0.137562, 0), App.Vector(0.412971, -0.133043, 0), App.Vector(0.418986, -0.127813, 0), App.Vector(0.424458, -0.122135, 0), App.Vector(0.4292, -0.116053, 0), App.Vector(0.433267, -0.109707, 0), App.Vector(0.436627, -0.103059, 0), App.Vector(0.439113, -0.096034, 0), App.Vector(0.441008, -0.088765, 0), App.Vector(0.442107, -0.081163, 0), App.Vector(0.44224, -0.076005, 0), App.Vector(0.442308, -0.073377, 0)], [4, 1, 1, 1, 1, 1, 1, 1, 1, 1, 1, 1, 1, 1, 1, 1, 4], [0, 0.000009382, 0.000018275, 0.000026867, 0.000035231, 0.000043312, 0.000051326, 0.000059277, 0.000067288, 0.000075194, 0.0000829, 0.000090385, 0.000097776, 0.00010519, 0.000112697, 0.000120286, 0.000128167], False, 3, [1, 1, 1, 1, 1, 1, 1, 1, 1, 1, 1, 1, 1, 1, 1, 1, 1, 1, 1], False),
    Part.BSplineCurve([App.Vector(0.273077, -0.074339, 0), App.Vector(0.273143, -0.076967, 0), App.Vector(0.273272, -0.082126, 0), App.Vector(0.274392, -0.089697, 0), App.Vector(0.276185, -0.096951, 0), App.Vector(0.278729, -0.103868, 0), App.Vector(0.281917, -0.110506, 0), App.Vector(0.285939, -0.116743, 0), App.Vector(0.290563, -0.122755, 0), App.Vector(0.295979, -0.128299, 0), App.Vector(0.301948, -0.133377, 0), App.Vector(0.308413, -0.137895, 0), App.Vector(0.315424, -0.141591, 0), App.Vector(0.322863, -0.14468, 0), App.Vector(0.330769, -0.147099, 0), App.Vector(0.339168, -0.148746, 0), App.Vector(0.34803, -0.149794, 0), App.Vector(0.354104, -0.14993, 0), App.Vector(0.357212, -0.15, 0)], [4, 1, 1, 1, 1, 1, 1, 1, 1, 1, 1, 1, 1, 1, 1, 1, 4], [0, 0.000007881, 0.00001547, 0.000022904, 0.000030261, 0.000037545, 0.000044948, 0.000052485, 0.000060262, 0.000068149, 0.000075968, 0.000083872, 0.000091874, 0.000100106, 0.000108627, 0.00011752, 0.000126842], False, 3, [1, 1, 1, 1, 1, 1, 1, 1, 1, 1, 1, 1, 1, 1, 1, 1, 1, 1, 1], False),
    Part.BSplineCurve([App.Vector(0.356851, 0.003846, 0), App.Vector(0.354705, 0.003885, 0), App.Vector(0.350498, 0.003961, 0), App.Vector(0.344386, 0.00477, 0), App.Vector(0.3386, 0.006012, 0), App.Vector(0.333191, 0.00783, 0), App.Vector(0.328091, 0.010102, 0), App.Vector(0.323393, 0.012959, 0), App.Vector(0.319014, 0.016275, 0), App.Vector(0.315087, 0.020129, 0), App.Vector(0.311544, 0.024316, 0), App.Vector(0.30848, 0.028804, 0), App.Vector(0.305774, 0.033489, 0), App.Vector(0.30372, 0.038526, 0), App.Vector(0.301982, 0.04375, 0), App.Vector(0.300896, 0.049265, 0), App.Vector(0.300123, 0.055006, 0), App.Vector(0.300042, 0.058932, 0), App.Vector(0.3, 0.060937, 0)], [4, 1, 1, 1, 1, 1, 1, 1, 1, 1, 1, 1, 1, 1, 1, 1, 4], [0, 0.000006435, 0.000012614, 0.000018461, 0.000024162, 0.000029703, 0.000035176, 0.000040621, 0.000046146, 0.000051647, 0.000057048, 0.00006243, 0.000067843, 0.000073336, 0.000078923, 0.000084677, 0.000090691], False, 3, [1, 1, 1, 1, 1, 1, 1, 1, 1, 1, 1, 1, 1, 1, 1, 1, 1, 1, 1], False),
    Part.BSplineCurve([App.Vector(0.415385, 0.062139, 0), App.Vector(0.415339, 0.060074, 0), App.Vector(0.41525, 0.056031, 0), App.Vector(0.414532, 0.050089, 0), App.Vector(0.413243, 0.044452, 0), App.Vector(0.411586, 0.039036, 0), App.Vector(0.409339, 0.033933, 0), App.Vector(0.406643, 0.029072, 0), App.Vector(0.40334, 0.02458, 0), App.Vector(0.399719, 0.020305, 0), App.Vector(0.395622, 0.016435, 0), App.Vector(0.391096, 0.013098, 0), App.Vector(0.386287, 0.010151, 0), App.Vector(0.381048, 0.00789, 0), App.Vector(0.375495, 0.006079, 0), App.Vector(0.369602, 0.004764, 0), App.Vector(0.363344, 0.003959, 0), App.Vector(0.359057, 0.003885, 0), App.Vector(0.356851, 0.003846, 0)], [4, 1, 1, 1, 1, 1, 1, 1, 1, 1, 1, 1, 1, 1, 1, 1, 4], [0, 0.000006195, 0.000012128, 0.000017916, 0.000023523, 0.000029094, 0.000034611, 0.000040164, 0.00004579, 0.000051402, 0.000057027, 0.000062633, 0.000068284, 0.000074099, 0.000080135, 0.000086374, 0.000092989], False, 3, [1, 1, 1, 1, 1, 1, 1, 1, 1, 1, 1, 1, 1, 1, 1, 1, 1, 1, 1], False),
    Part.BSplineCurve([App.Vector(0.357993, 0.119231, 0), App.Vector(0.360179, 0.119194, 0), App.Vector(0.364426, 0.119122, 0), App.Vector(0.370617, 0.1183, 0), App.Vector(0.376451, 0.117052, 0), App.Vector(0.381953, 0.115342, 0), App.Vector(0.387044, 0.113002, 0), App.Vector(0.391805, 0.110267, 0), App.Vector(0.396189, 0.106962, 0), App.Vector(0.400194, 0.103189, 0), App.Vector(0.403778, 0.099016, 0), App.Vector(0.406849, 0.094515, 0), App.Vector(0.409528, 0.089811, 0), App.Vector(0.411715, 0.084804, 0), App.Vector(0.413297, 0.079482, 0), App.Vector(0.414517, 0.073943, 0), App.Vector(0.415254, 0.068129, 0), App.Vector(0.41534, 0.064165, 0), App.Vector(0.415385, 0.062139, 0)], [4, 1, 1, 1, 1, 1, 1, 1, 1, 1, 1, 1, 1, 1, 1, 1, 4], [0, 0.000006555, 0.000012734, 0.000018699, 0.000024438, 0.000029979, 0.000035473, 0.000040881, 0.000046408, 0.000051949, 0.00005735, 0.000062732, 0.000068169, 0.0000737, 0.000079358, 0.000085173, 0.000091247], False, 3, [1, 1, 1, 1, 1, 1, 1, 1, 1, 1, 1, 1, 1, 1, 1, 1, 1, 1, 1], False),
    Part.BSplineCurve([App.Vector(0.3, 0.060937, 0), App.Vector(0.300067, 0.063405, 0), App.Vector(0.3002, 0.068348, 0), App.Vector(0.301368, 0.075688, 0), App.Vector(0.303351, 0.082892, 0), App.Vector(0.305892, 0.089966, 0), App.Vector(0.309476, 0.096624, 0), App.Vector(0.314229, 0.102567, 0), App.Vector(0.320193, 0.107564, 0), App.Vector(0.327004, 0.111785, 0), App.Vector(0.334437, 0.115108, 0), App.Vector(0.342182, 0.117427, 0), App.Vector(0.35004, 0.118959, 0), App.Vector(0.355342, 0.11914, 0), App.Vector(0.357993, 0.119231, 0)], [4, 1, 1, 1, 1, 1, 1, 1, 1, 1, 1, 1, 4], [0, 0.000007401, 0.000014821, 0.000022226, 0.000029795, 0.000037325, 0.000044805, 0.000052477, 0.000060548, 0.000068779, 0.000076821, 0.000084765, 0.000092713], False, 3, [1, 1, 1, 1, 1, 1, 1, 1, 1, 1, 1, 1, 1, 1, 1], False),
    Part.BSplineCurve([App.Vector(0.357692, -0.115385, 0), App.Vector(0.355927, -0.11536, 0), App.Vector(0.352486, -0.115312, 0), App.Vector(0.347473, -0.114647, 0), App.Vector(0.342729, -0.113813, 0), App.Vector(0.338296, -0.112473, 0), App.Vector(0.334194, -0.110723, 0), App.Vector(0.330378, -0.108593, 0), App.Vector(0.326822, -0.106155, 0), App.Vector(0.322627, -0.1024, 0), App.Vector(0.318235, -0.097117, 0), App.Vector(0.314365, -0.09002, 0), App.Vector(0.311973, -0.082282, 0), App.Vector(0.311685, -0.0769, 0), App.Vector(0.311538, -0.074159, 0)], [4, 1, 1, 1, 1, 1, 1, 1, 1, 1, 1, 1, 4], [0, 0.000005292, 0.000010316, 0.000015148, 0.00001973, 0.000024173, 0.000028504, 0.000032821, 0.000037078, 0.000045358, 0.000053291, 0.0000612, 0.00006941], False, 3, [1, 1, 1, 1, 1, 1, 1, 1, 1, 1, 1, 1, 1, 1, 1], False),
    Part.BSplineCurve([App.Vector(0.403846, -0.072356, 0), App.Vector(0.403698, -0.075276, 0), App.Vector(0.403408, -0.080989, 0), App.Vector(0.401069, -0.08919, 0), App.Vector(0.397129, -0.096618, 0), App.Vector(0.392629, -0.102043, 0), App.Vector(0.388465, -0.105973, 0), App.Vector(0.384901, -0.108475, 0), App.Vector(0.381071, -0.110604, 0), App.Vector(0.376958, -0.112342, 0), App.Vector(0.372558, -0.113745, 0), App.Vector(0.367858, -0.114665, 0), App.Vector(0.362878, -0.11531, 0), App.Vector(0.359457, -0.115359, 0), App.Vector(0.357692, -0.115385, 0)], [4, 1, 1, 1, 1, 1, 1, 1, 1, 1, 1, 1, 4], [0, 0.000008749, 0.000017119, 0.000025345, 0.000033802, 0.00003814, 0.000042492, 0.000046823, 0.000051266, 0.000055866, 0.000060651, 0.000065615, 0.000070907], False, 3, [1, 1, 1, 1, 1, 1, 1, 1, 1, 1, 1, 1, 1, 1, 1], False),
    Part.BSplineCurve([App.Vector(0.358053, -0.030769, 0), App.Vector(0.359838, -0.030795, 0), App.Vector(0.363319, -0.030844, 0), App.Vector(0.368354, -0.031492, 0), App.Vector(0.373113, -0.032358, 0), App.Vector(0.377524, -0.03367, 0), App.Vector(0.381638, -0.035375, 0), App.Vector(0.38539, -0.037478, 0), App.Vector(0.38889, -0.039894, 0), App.Vector(0.392983, -0.043653, 0), App.Vector(0.397374, -0.048936, 0), App.Vector(0.401138, -0.056148, 0), App.Vector(0.403484, -0.064038, 0), App.Vector(0.403723, -0.069535, 0), App.Vector(0.403846, -0.072356, 0)], [4, 1, 1, 1, 1, 1, 1, 1, 1, 1, 1, 1, 4], [0, 0.000005352, 0.000010435, 0.000015209, 0.000019848, 0.000024212, 0.000028543, 0.000032728, 0.00003694, 0.000045181, 0.000053192, 0.000061199, 0.000069644], False, 3, [1, 1, 1, 1, 1, 1, 1, 1, 1, 1, 1, 1, 1, 1, 1], False),
    Part.BSplineCurve([App.Vector(0.311538, -0.074159, 0), App.Vector(0.311653, -0.071097, 0), App.Vector(0.311873, -0.06518, 0), App.Vector(0.314272, -0.056776, 0), App.Vector(0.318024, -0.049226, 0), App.Vector(0.322421, -0.043752, 0), App.Vector(0.326638, -0.040021, 0), App.Vector(0.330157, -0.037531, 0), App.Vector(0.334003, -0.035416, 0), App.Vector(0.338203, -0.033773, 0), App.Vector(0.342656, -0.032317, 0), App.Vector(0.347515, -0.031503, 0), App.Vector(0.352666, -0.030842, 0), App.Vector(0.356227, -0.030794, 0), App.Vector(0.358053, -0.030769, 0)], [4, 1, 1, 1, 1, 1, 1, 1, 1, 1, 1, 1, 4], [0, 0.000009163, 0.000017707, 0.000025985, 0.000034319, 0.000038576, 0.000042845, 0.000047228, 0.000051704, 0.000056361, 0.000061252, 0.000066455, 0.000071927], False, 3, [1, 1, 1, 1, 1, 1, 1, 1, 1, 1, 1, 1, 1, 1, 1], False),
], False)
sketch2.addConstraint([
    Sketcher.Constraint("Block", 3),
    Sketcher.Constraint("Block", 5),
    Sketcher.Constraint("Block", 9),
    Sketcher.Constraint("Block", 10),
    Sketcher.Constraint("Block", 11),
    Sketcher.Constraint("Block", 12),
    Sketcher.Constraint("Block", 14),
    Sketcher.Constraint("Block", 15),
    Sketcher.Constraint("Block", 16),
    Sketcher.Constraint("Block", 17),
    Sketcher.Constraint("Block", 18),
    Sketcher.Constraint("Block", 23),
    Sketcher.Constraint("Block", 25),
    Sketcher.Constraint("Block", 27),
    Sketcher.Constraint("Block", 28),
    Sketcher.Constraint("Block", 29),
    Sketcher.Constraint("Block", 30),
    Sketcher.Constraint("Block", 31),
    Sketcher.Constraint("Block", 32),
    Sketcher.Constraint("Block", 33),
    Sketcher.Constraint("Block", 34),
    Sketcher.Constraint("Block", 35),
    Sketcher.Constraint("Block", 36),
    Sketcher.Constraint("Block", 37),
    Sketcher.Constraint("Block", 38),
    Sketcher.Constraint("Block", 39),
    Sketcher.Constraint("Block", 40),
    Sketcher.Constraint("Block", 41),
    Sketcher.Constraint("Block", 42),
    Sketcher.Constraint("Coincident", 0, 2, 1, 1),
    Sketcher.Constraint("Coincident", 1, 2, 2, 1),
    Sketcher.Constraint("Coincident", 2, 2, 3, 2),
    Sketcher.Constraint("Coincident", 3, 1, 4, 1),
    Sketcher.Constraint("Coincident", 4, 2, 5, 2),
    Sketcher.Constraint("Coincident", 5, 1, 6, 1),
    Sketcher.Constraint("Coincident", 6, 2, 0, 1),
    Sketcher.Constraint("Coincident", 7, 2, 8, 1),
    Sketcher.Constraint("Coincident", 8, 2, 9, 2),
    Sketcher.Constraint("Coincident", 12, 1, 13, 1),
    Sketcher.Constraint("Coincident", 13, 2, 14, 2),
    Sketcher.Constraint("Coincident", 18, 1, 19, 1),
    Sketcher.Constraint("Coincident", 19, 2, 7, 1),
    Sketcher.Constraint("Coincident", 20, 2, 21, 1),
    Sketcher.Constraint("Coincident", 21, 2, 22, 1),
    Sketcher.Constraint("Coincident", 22, 2, 23, 2),
    Sketcher.Constraint("Coincident", 23, 1, 24, 1),
    Sketcher.Constraint("Coincident", 24, 2, 25, 2),
    Sketcher.Constraint("Coincident", 25, 1, 26, 1),
    Sketcher.Constraint("Coincident", 26, 2, 20, 1),
    Sketcher.Constraint("Horizontal", 0),
    Sketcher.Constraint("Vertical", 1),
    Sketcher.Constraint("Horizontal", 2),
    Sketcher.Constraint("Vertical", 6),
    Sketcher.Constraint("Vertical", 7),
    Sketcher.Constraint("Horizontal", 8),
    Sketcher.Constraint("Horizontal", 19),
    Sketcher.Constraint("Horizontal", 20),
    Sketcher.Constraint("Vertical", 21),
    Sketcher.Constraint("Horizontal", 22),
    Sketcher.Constraint("Vertical", 26),
    Sketcher.Constraint("DistanceY", 1, 2, 1, 1, 0.3),
    Sketcher.Constraint("DistanceY", 21, 2, 21, 1, 0.3),
    Sketcher.Constraint("DistanceX", 0, 1, 0, 2, 0.038462),
    Sketcher.Constraint("DistanceX", 20, 1, 20, 2, 0.038462),
    Sketcher.Constraint("DistanceX", 8, 2, 8, 1, 0.146755),
])
sketch2.setExpression("Constraints[60]", "Params.sketch2_height")
sketch2.setExpression("Constraints[61]", "Params.sketch2_height2")
pad2 = doc.addObject("PartDesign::Pad", "Pad001")
body.addObject(pad2)
pad2.Profile = sketch2
pad2.setExpression("Length", "Params.pad2_length")
pad2.Reversed = True

doc.recompute()
